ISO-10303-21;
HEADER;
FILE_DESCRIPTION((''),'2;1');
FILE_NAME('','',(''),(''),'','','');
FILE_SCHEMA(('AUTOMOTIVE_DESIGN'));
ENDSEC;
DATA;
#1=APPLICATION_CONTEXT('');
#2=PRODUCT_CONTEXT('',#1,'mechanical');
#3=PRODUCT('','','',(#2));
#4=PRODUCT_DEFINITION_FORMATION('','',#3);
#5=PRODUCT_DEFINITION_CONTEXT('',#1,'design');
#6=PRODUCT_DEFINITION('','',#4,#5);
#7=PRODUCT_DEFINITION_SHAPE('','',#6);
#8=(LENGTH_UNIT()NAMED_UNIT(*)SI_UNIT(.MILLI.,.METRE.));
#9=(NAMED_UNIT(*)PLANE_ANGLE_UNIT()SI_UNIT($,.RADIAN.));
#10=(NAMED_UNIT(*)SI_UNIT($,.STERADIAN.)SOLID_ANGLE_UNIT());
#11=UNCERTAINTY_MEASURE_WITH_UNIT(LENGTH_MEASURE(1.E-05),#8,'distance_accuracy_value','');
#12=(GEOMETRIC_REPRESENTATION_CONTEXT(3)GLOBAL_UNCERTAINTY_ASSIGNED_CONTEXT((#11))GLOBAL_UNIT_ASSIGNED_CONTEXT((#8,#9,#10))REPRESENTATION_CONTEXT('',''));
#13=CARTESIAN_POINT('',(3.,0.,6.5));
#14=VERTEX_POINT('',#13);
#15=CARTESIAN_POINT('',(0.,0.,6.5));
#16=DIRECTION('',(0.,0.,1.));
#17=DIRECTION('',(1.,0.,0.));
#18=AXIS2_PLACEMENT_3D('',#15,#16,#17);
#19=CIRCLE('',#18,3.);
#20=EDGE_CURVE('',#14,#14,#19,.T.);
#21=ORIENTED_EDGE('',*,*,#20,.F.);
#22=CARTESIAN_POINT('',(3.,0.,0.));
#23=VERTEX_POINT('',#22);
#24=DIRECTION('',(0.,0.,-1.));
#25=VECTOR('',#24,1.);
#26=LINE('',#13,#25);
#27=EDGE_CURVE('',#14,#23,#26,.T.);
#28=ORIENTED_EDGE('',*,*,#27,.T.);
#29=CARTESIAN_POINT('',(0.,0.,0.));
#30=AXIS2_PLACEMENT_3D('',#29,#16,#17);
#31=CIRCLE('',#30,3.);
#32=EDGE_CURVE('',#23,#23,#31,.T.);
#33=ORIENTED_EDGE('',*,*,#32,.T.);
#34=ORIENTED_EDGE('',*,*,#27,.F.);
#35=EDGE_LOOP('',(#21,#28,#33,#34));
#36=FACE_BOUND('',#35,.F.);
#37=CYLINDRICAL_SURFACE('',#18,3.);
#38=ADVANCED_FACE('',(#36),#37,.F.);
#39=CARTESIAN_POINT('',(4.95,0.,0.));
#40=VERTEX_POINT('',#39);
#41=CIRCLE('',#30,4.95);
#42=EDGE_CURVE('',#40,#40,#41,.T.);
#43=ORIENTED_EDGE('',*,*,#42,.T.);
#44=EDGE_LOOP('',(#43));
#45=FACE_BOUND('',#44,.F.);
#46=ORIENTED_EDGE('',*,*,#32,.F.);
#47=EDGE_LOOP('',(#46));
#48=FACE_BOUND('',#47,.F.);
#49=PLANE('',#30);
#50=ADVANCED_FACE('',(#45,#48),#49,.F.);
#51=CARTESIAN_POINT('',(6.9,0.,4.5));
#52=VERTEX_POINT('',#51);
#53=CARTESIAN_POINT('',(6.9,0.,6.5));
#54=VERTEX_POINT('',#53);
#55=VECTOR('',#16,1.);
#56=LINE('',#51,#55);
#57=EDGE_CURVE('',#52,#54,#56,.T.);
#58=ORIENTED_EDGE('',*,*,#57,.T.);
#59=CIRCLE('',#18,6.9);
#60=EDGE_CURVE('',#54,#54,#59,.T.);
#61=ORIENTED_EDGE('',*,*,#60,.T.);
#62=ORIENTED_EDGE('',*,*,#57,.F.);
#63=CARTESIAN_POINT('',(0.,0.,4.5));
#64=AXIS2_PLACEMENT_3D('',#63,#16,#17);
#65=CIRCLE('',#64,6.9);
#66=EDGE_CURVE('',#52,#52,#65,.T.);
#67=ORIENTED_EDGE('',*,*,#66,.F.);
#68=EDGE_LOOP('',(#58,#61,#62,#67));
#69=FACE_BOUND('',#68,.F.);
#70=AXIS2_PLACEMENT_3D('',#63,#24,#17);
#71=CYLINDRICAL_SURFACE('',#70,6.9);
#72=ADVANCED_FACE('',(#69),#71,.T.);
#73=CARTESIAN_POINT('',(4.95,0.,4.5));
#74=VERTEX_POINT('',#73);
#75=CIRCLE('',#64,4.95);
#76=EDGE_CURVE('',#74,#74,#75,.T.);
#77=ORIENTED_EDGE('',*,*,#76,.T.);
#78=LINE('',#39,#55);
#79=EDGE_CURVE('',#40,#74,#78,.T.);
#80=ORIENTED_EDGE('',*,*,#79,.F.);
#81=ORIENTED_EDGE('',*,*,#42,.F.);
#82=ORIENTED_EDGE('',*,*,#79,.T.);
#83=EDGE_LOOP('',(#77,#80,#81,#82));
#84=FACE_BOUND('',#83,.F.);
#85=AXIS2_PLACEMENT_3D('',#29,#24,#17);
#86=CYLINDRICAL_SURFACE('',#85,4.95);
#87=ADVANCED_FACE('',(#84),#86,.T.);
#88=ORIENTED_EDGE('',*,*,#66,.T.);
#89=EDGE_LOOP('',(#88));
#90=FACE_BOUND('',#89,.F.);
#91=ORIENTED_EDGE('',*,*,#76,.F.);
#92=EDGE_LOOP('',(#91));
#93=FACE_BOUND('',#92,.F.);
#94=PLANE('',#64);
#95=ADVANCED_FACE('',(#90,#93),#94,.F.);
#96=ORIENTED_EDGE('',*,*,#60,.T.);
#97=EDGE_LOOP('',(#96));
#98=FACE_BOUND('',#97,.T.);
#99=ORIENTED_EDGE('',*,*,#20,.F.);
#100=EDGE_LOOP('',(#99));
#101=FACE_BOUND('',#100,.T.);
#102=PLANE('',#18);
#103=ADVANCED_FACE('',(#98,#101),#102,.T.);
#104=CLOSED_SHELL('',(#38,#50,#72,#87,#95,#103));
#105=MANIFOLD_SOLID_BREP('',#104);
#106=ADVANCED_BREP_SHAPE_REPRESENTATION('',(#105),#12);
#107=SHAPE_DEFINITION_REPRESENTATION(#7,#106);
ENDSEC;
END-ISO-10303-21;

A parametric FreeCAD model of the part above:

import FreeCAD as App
import Part
import Sketcher

doc = App.newDocument("Part")
body = doc.addObject("PartDesign::Body", "Body")

sketch1 = doc.addObject("Sketcher::SketchObject", "Sketch")
body.addObject(sketch1)
sketch1.AttachmentSupport = (doc.XY_Plane, [""])
sketch1.MapMode = "FlatFace"
sketch1.addGeometry(Part.Circle(App.Vector(0, 0, 0), App.Vector(0, 0, 1), 4.95), False)
sketch1.addConstraint([
    Sketcher.Constraint("Coincident", 0, 3, -1, 1),
    Sketcher.Constraint("Diameter", 0, 9.9),
])
pad1 = doc.addObject("PartDesign::Pad", "Pad")
body.addObject(pad1)
pad1.Profile = sketch1
pad1.Length = 4.5

sketch2 = doc.addObject("Sketcher::SketchObject", "Sketch001")
body.addObject(sketch2)
sketch2.AttachmentSupport = (doc.XY_Plane, [""])
sketch2.MapMode = "FlatFace"
sketch2.AttachmentOffset = App.Placement(App.Vector(0, 0, 4.5), App.Rotation())
sketch2.addGeometry(Part.Circle(App.Vector(0, 0, 0), App.Vector(0, 0, 1), 6.9), False)
sketch2.addConstraint([
    Sketcher.Constraint("Coincident", 0, 3, -1, 1),
    Sketcher.Constraint("Diameter", 0, 13.8),
])
pad2 = doc.addObject("PartDesign::Pad", "Pad001")
body.addObject(pad2)
pad2.Profile = sketch2
pad2.Length = 2

sketch3 = doc.addObject("Sketcher::SketchObject", "Sketch002")
body.addObject(sketch3)
sketch3.AttachmentSupport = (doc.XY_Plane, [""])
sketch3.MapMode = "FlatFace"
sketch3.AttachmentOffset = App.Placement(App.Vector(0, 0, 6.5), App.Rotation())
sketch3.addGeometry(Part.Circle(App.Vector(0, 0, 0), App.Vector(0, 0, 1), 3), False)
sketch3.addConstraint([
    Sketcher.Constraint("Coincident", 0, 3, -1, 1),
    Sketcher.Constraint("Diameter", 0, 6.0),
])
pocket1 = doc.addObject("PartDesign::Pocket", "Pocket")
body.addObject(pocket1)
pocket1.Profile = sketch3
pocket1.Length = 20

doc.recompute()
